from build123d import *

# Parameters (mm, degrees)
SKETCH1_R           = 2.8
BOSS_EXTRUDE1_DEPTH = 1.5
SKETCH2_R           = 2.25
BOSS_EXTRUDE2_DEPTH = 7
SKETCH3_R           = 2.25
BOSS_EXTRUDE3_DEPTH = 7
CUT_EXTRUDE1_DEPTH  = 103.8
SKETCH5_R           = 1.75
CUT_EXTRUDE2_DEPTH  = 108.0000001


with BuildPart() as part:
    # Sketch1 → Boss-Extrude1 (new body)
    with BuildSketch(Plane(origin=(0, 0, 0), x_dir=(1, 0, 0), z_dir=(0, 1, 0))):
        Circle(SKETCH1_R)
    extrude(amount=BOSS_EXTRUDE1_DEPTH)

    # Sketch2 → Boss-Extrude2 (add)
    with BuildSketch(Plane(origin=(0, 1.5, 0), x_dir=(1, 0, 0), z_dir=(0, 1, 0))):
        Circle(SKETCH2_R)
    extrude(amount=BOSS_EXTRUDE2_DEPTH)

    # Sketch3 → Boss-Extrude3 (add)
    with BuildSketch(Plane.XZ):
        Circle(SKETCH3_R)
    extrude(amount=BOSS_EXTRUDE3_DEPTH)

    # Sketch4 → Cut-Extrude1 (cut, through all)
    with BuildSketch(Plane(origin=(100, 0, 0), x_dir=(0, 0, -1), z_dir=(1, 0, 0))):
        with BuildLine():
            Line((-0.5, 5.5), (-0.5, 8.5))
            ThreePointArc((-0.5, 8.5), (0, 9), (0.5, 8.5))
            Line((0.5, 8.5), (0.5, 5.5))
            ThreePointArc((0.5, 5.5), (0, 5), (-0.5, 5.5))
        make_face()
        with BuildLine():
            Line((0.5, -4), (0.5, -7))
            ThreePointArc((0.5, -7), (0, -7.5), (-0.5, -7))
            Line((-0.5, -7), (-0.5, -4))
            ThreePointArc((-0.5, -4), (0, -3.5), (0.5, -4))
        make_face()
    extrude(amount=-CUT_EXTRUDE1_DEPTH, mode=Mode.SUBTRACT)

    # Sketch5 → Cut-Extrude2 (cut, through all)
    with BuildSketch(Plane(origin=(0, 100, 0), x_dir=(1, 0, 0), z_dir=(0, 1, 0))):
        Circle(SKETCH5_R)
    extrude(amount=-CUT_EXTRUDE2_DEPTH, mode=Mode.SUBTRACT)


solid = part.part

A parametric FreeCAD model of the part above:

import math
import FreeCAD as App
import Part
import Sketcher

doc = App.newDocument("Part")
params = doc.addObject("Spreadsheet::Sheet", "Params")
for row, (alias, value) in enumerate([
    ("sketch1_diameter", "5.6 mm"),
    ("pad1_length", "1.5 mm"),
    ("sketch2_diameter", "4.5 mm"),
    ("pad2_length", "7 mm"),
    ("sketch3_diameter", "4.5 mm"),
    ("pad3_length", "7 mm"),
    ("sketch4_radius", "0.5 mm"),
    ("sketch4_width", "3 mm"),
    ("sketch5_diameter", "3.5 mm"),
], start=1):
    params.set(f"A{row}", alias)
    params.set(f"B{row}", "=" + value)
    params.setAlias(f"B{row}", alias)

body = doc.addObject("PartDesign::Body", "Body")

sketch1 = body.newObject("Sketcher::SketchObject", "Sketch")
sketch1.AttachmentSupport = (doc.getObject("XZ_Plane"), [""])
sketch1.MapMode = "FlatFace"
sketch1.addGeometry(Part.Circle(App.Vector(0, 0, 0), App.Vector(0, 0, 1), 2.8), False)
sketch1.addConstraint(Sketcher.Constraint("Coincident", 0, 3, -1, 1))
sketch1.addConstraint(Sketcher.Constraint("Diameter", 0, 5.6))
sketch1.setExpression("Constraints[1]", "Params.sketch1_diameter")
pad1 = body.newObject("PartDesign::Pad", "Pad")
pad1.Profile = sketch1
pad1.setExpression("Length", "Params.pad1_length")
pad1.Reversed = True

sketch2 = body.newObject("Sketcher::SketchObject", "Sketch001")
sketch2.AttachmentSupport = (doc.getObject("XZ_Plane"), [""])
sketch2.MapMode = "FlatFace"
sketch2.AttachmentOffset = App.Placement(App.Vector(0, 0, -1.5), App.Rotation())
sketch2.addGeometry(Part.Circle(App.Vector(0, 0, 0), App.Vector(0, 0, 1), 2.2), False)
sketch2.addConstraint(Sketcher.Constraint("Coincident", 0, 3, -1, 1))
sketch2.addConstraint(Sketcher.Constraint("Diameter", 0, 4.5))
sketch2.setExpression("Constraints[1]", "Params.sketch2_diameter")
pad2 = body.newObject("PartDesign::Pad", "Pad001")
pad2.Profile = sketch2
pad2.setExpression("Length", "Params.pad2_length")
pad2.Reversed = True

sketch3 = body.newObject("Sketcher::SketchObject", "Sketch002")
sketch3.AttachmentSupport = (doc.getObject("XZ_Plane"), [""])
sketch3.MapMode = "FlatFace"
sketch3.addGeometry(Part.Circle(App.Vector(0, 0, 0), App.Vector(0, 0, 1), 2.2), False)
sketch3.addConstraint(Sketcher.Constraint("Coincident", 0, 3, -1, 1))
sketch3.addConstraint(Sketcher.Constraint("Diameter", 0, 4.5))
sketch3.setExpression("Constraints[1]", "Params.sketch3_diameter")
pad3 = body.newObject("PartDesign::Pad", "Pad002")
pad3.Profile = sketch3
pad3.setExpression("Length", "Params.pad3_length")

sketch4 = body.newObject("Sketcher::SketchObject", "Sketch003")
sketch4.AttachmentSupport = (doc.getObject("YZ_Plane"), [""])
sketch4.MapMode = "FlatFace"
sketch4.AttachmentOffset = App.Placement(App.Vector(0, 0, 100), App.Rotation())
sketch4.addGeometry(Part.LineSegment(App.Vector(8.5, 0.5, 0), App.Vector(5.5, 0.5, 0)), False)
sketch4.addGeometry(Part.ArcOfCircle(Part.Circle(App.Vector(5.5, 0, 0), App.Vector(0, 0, 1), 0.5), math.radians(90), math.radians(270)), False)
sketch4.addGeometry(Part.LineSegment(App.Vector(5.5, -0.5, 0), App.Vector(8.5, -0.5, 0)), False)
sketch4.addGeometry(Part.ArcOfCircle(Part.Circle(App.Vector(8.5, 0, 0), App.Vector(0, 0, 1), 0.5), math.radians(-90), math.radians(90)), False)
sketch4.addGeometry(Part.LineSegment(App.Vector(-7, -0.5, 0), App.Vector(-4, -0.5, 0)), False)
sketch4.addGeometry(Part.ArcOfCircle(Part.Circle(App.Vector(-4, 0, 0), App.Vector(0, 0, 1), 0.5), math.radians(-90), math.radians(90)), False)
sketch4.addGeometry(Part.LineSegment(App.Vector(-4, 0.5, 0), App.Vector(-7, 0.5, 0)), False)
sketch4.addGeometry(Part.ArcOfCircle(Part.Circle(App.Vector(-7, 0, 0), App.Vector(0, 0, 1), 0.5), math.radians(90), math.radians(270)), False)
sketch4.addConstraint(Sketcher.Constraint("Tangent", 0, 2, 1, 1))
sketch4.addConstraint(Sketcher.Constraint("Tangent", 1, 2, 2, 1))
sketch4.addConstraint(Sketcher.Constraint("Tangent", 2, 2, 3, 1))
sketch4.addConstraint(Sketcher.Constraint("Tangent", 3, 2, 0, 1))
sketch4.addConstraint(Sketcher.Constraint("Tangent", 4, 2, 5, 1))
sketch4.addConstraint(Sketcher.Constraint("Tangent", 5, 2, 6, 1))
sketch4.addConstraint(Sketcher.Constraint("Tangent", 6, 2, 7, 1))
sketch4.addConstraint(Sketcher.Constraint("Tangent", 7, 2, 4, 1))
sketch4.addConstraint(Sketcher.Constraint("Horizontal", 0))
sketch4.addConstraint(Sketcher.Constraint("Horizontal", 2))
sketch4.addConstraint(Sketcher.Constraint("Horizontal", 4))
sketch4.addConstraint(Sketcher.Constraint("Horizontal", 6))
sketch4.addConstraint(Sketcher.Constraint("Equal", 3, 5))
sketch4.addConstraint(Sketcher.Constraint("PointOnObject", 1, 3, -1))
sketch4.addConstraint(Sketcher.Constraint("PointOnObject", 5, 3, -1))
sketch4.addConstraint(Sketcher.Constraint("Equal", 2, 4))
sketch4.addConstraint(Sketcher.Constraint("Radius", 1, 0.5))
sketch4.addConstraint(Sketcher.Constraint("DistanceX", 0, 2, 0, 1, 3.0))
sketch4.addConstraint(Sketcher.Constraint("DistanceX", 5, 3, -1, 1, 4.0))
sketch4.addConstraint(Sketcher.Constraint("DistanceX", -1, 1, 1, 3, 5.5))
sketch4.setExpression("Constraints[16]", "Params.sketch4_radius")
sketch4.setExpression("Constraints[17]", "Params.sketch4_width")
pocket1 = body.newObject("PartDesign::Pocket", "Pocket")
pocket1.Profile = sketch4
pocket1.Type = "ThroughAll"

sketch5 = body.newObject("Sketcher::SketchObject", "Sketch004")
sketch5.AttachmentSupport = (doc.getObject("XZ_Plane"), [""])
sketch5.MapMode = "FlatFace"
sketch5.AttachmentOffset = App.Placement(App.Vector(0, 0, -100), App.Rotation())
sketch5.addGeometry(Part.Circle(App.Vector(0, 0, 0), App.Vector(0, 0, 1), 1.8), False)
sketch5.addConstraint(Sketcher.Constraint("Coincident", 0, 3, -1, 1))
sketch5.addConstraint(Sketcher.Constraint("Diameter", 0, 3.5))
sketch5.setExpression("Constraints[1]", "Params.sketch5_diameter")
pocket2 = body.newObject("PartDesign::Pocket", "Pocket001")
pocket2.Profile = sketch5
pocket2.Type = "ThroughAll"
pocket2.Reversed = True

doc.recompute()
